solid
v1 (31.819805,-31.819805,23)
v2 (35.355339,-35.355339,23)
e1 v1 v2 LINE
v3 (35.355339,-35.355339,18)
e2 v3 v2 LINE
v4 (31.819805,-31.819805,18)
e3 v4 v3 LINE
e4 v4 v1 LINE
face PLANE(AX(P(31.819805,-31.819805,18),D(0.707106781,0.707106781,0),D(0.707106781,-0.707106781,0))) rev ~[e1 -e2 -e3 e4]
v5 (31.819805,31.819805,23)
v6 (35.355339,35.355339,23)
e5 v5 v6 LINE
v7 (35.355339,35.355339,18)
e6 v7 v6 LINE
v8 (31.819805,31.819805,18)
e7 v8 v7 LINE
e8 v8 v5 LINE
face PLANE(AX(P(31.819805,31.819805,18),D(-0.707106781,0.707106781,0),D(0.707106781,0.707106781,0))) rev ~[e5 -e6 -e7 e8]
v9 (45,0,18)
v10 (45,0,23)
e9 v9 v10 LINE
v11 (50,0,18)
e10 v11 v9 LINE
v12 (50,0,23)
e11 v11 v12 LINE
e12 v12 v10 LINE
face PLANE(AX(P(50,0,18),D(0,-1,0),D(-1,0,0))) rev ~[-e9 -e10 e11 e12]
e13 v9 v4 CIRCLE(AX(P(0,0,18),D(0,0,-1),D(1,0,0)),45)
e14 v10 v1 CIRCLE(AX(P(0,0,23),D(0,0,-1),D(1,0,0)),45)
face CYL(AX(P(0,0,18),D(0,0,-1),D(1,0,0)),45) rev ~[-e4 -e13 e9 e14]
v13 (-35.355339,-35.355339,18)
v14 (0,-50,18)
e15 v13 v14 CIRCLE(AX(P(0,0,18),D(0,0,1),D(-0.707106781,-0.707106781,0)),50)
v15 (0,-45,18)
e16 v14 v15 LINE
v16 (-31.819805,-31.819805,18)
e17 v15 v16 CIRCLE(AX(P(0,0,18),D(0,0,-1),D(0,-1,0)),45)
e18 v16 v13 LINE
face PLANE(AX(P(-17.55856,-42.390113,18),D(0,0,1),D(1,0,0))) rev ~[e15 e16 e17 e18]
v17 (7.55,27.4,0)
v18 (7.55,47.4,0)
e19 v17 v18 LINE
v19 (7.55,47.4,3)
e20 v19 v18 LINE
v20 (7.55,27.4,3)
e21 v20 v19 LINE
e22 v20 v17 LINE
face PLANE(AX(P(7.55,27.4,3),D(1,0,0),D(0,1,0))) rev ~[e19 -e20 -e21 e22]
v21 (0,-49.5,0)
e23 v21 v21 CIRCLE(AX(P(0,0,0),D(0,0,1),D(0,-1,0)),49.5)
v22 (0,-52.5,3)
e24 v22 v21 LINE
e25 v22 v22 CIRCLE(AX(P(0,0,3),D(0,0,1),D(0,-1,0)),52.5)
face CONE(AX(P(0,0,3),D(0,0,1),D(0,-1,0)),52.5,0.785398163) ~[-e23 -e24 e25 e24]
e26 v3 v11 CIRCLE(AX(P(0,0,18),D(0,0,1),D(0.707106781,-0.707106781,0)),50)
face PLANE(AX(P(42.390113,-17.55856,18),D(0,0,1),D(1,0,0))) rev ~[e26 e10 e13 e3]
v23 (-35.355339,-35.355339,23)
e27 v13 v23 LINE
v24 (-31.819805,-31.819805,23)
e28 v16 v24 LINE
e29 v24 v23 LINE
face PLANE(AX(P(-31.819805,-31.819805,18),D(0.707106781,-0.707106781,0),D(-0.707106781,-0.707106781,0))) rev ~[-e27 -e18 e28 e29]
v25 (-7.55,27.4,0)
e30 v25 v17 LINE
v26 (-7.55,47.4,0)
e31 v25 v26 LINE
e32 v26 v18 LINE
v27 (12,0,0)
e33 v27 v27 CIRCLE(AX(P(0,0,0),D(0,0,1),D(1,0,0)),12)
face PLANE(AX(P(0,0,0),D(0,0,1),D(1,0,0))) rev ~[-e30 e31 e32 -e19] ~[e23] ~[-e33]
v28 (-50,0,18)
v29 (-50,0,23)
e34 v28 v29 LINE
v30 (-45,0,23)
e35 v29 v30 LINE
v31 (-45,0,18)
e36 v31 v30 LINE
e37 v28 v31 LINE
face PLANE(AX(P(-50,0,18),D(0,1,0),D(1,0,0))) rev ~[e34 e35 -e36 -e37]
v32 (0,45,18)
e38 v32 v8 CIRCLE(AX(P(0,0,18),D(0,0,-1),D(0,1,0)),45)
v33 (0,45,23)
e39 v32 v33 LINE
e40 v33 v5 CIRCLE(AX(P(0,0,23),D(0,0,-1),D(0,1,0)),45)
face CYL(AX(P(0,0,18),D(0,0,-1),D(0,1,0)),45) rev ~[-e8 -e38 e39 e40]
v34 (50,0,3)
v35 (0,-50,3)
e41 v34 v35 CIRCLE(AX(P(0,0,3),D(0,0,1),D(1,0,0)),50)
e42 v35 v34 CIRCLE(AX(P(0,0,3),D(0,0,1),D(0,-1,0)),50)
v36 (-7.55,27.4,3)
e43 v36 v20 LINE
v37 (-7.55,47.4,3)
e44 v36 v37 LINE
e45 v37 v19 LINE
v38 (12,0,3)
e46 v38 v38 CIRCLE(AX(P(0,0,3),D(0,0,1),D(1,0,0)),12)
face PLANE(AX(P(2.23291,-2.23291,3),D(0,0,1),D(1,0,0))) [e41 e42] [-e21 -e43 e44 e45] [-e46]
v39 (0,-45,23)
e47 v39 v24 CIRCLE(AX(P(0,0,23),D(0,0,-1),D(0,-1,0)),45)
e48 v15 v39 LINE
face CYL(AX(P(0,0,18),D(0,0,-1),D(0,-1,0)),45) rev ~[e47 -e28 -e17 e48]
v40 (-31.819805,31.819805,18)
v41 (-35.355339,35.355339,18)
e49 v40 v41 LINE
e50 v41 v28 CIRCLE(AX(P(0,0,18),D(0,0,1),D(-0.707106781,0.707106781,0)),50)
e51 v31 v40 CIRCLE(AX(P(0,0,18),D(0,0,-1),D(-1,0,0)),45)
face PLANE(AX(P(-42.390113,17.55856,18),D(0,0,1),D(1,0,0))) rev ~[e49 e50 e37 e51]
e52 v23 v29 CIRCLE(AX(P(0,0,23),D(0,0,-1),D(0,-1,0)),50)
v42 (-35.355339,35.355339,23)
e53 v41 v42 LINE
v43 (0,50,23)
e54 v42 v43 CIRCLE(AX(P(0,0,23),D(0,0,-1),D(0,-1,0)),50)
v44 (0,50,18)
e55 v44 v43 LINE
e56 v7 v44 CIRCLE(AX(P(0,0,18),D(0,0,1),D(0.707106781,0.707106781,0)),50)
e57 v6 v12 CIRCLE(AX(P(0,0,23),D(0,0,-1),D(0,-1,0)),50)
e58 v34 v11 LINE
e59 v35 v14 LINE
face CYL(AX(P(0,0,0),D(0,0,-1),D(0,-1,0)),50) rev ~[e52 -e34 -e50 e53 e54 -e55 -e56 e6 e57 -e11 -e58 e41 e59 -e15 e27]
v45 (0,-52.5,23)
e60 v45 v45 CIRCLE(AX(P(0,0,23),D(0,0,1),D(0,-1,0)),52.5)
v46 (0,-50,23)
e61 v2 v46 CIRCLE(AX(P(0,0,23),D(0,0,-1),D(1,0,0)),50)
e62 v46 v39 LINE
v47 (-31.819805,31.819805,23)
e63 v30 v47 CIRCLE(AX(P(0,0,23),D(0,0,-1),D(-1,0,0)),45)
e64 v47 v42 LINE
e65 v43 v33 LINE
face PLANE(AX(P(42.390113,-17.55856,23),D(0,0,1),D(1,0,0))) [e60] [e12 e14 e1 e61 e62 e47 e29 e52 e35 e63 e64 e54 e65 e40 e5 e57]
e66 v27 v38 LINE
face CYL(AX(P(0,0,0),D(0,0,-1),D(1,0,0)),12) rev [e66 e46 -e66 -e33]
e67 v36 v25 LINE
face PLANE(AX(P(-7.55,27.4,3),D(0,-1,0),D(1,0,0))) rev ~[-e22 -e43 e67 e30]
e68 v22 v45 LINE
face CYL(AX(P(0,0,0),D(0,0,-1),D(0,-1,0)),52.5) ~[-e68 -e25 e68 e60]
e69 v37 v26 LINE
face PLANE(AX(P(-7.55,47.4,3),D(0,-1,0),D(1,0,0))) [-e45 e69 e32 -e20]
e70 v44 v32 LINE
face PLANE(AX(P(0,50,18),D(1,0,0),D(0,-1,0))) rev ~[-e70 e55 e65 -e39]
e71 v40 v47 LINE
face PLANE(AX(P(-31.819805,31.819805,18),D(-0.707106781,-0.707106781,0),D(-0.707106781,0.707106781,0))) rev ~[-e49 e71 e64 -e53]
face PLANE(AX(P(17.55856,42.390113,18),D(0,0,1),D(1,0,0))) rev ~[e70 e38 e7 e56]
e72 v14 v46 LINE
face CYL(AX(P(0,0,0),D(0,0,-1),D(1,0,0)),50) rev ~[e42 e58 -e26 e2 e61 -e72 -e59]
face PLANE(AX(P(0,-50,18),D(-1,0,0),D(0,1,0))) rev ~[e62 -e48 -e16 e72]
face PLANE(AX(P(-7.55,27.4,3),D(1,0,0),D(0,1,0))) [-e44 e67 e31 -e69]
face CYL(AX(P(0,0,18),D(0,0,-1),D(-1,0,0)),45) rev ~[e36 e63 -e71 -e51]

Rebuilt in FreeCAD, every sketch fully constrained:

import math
import FreeCAD as App
import Part
import Sketcher


def edges_at(feature, points):
    """Names of the edges that pass closest to the given points."""
    edges = feature.Shape.Edges
    near = lambda p: min(range(len(edges)), key=lambda i: edges[i].distToShape(Part.Vertex(*p))[0])
    return sorted({f"Edge{near(p) + 1}" for p in points})

doc = App.newDocument("Part")
body = doc.addObject("PartDesign::Body", "Body")

# Sketch on XY plane
sketch1 = doc.addObject("Sketcher::SketchObject", "Sketch")
body.addObject(sketch1)
sketch1.AttachmentSupport = (doc.XY_Plane, [""])
sketch1.MapMode = "FlatFace"
sketch1.addGeometry(Part.ArcOfCircle(Part.Circle(App.Vector(0, 0, 0), App.Vector(0, 0, 1), 50), math.radians(-90), math.radians(0)), False)
sketch1.addGeometry(Part.ArcOfCircle(Part.Circle(App.Vector(0, 0, 0), App.Vector(0, 0, 1), 50), math.radians(0), math.radians(270)), False)
sketch1.addGeometry(Part.Circle(App.Vector(0, 0, 0), App.Vector(0, 0, 1), 12), False)
sketch1.addConstraint(Sketcher.Constraint("Tangent", 0, 1, 1, 2))
sketch1.addConstraint(Sketcher.Constraint("Coincident", 1, 1, 0, 2))
sketch1.addConstraint(Sketcher.Constraint("Coincident", 0, 3, -1, 1))
sketch1.addConstraint(Sketcher.Constraint("Coincident", 2, 3, -1, 1))
sketch1.addConstraint(Sketcher.Constraint("PointOnObject", 0, 1, -2))
sketch1.addConstraint(Sketcher.Constraint("PointOnObject", 1, 1, -1))
sketch1.addConstraint(Sketcher.Constraint("Diameter", 2, 24.0))
sketch1.addConstraint(Sketcher.Constraint("Radius", 0, 50.0))
pad1 = doc.addObject("PartDesign::Pad", "Pad")
body.addObject(pad1)
pad1.Profile = sketch1
pad1.Length = 3

# Sketch on XY plane
sketch2 = doc.addObject("Sketcher::SketchObject", "Sketch001")
body.addObject(sketch2)
sketch2.AttachmentSupport = (doc.XY_Plane, [""])
sketch2.MapMode = "FlatFace"
sketch2.addGeometry(Part.Circle(App.Vector(0, 0, 0), App.Vector(0, 0, 1), 52), False)
sketch2.addGeometry(Part.ArcOfCircle(Part.Circle(App.Vector(0, 0, 0), App.Vector(0, 0, 1), 50), math.radians(-90), math.radians(0)), False)
sketch2.addGeometry(Part.ArcOfCircle(Part.Circle(App.Vector(0, 0, 0), App.Vector(0, 0, 1), 50), math.radians(0), math.radians(270)), False)
sketch2.addConstraint(Sketcher.Constraint("Tangent", 1, 1, 2, 2))
sketch2.addConstraint(Sketcher.Constraint("Coincident", 2, 1, 1, 2))
sketch2.addConstraint(Sketcher.Constraint("Coincident", 0, 3, -1, 1))
sketch2.addConstraint(Sketcher.Constraint("Coincident", 1, 3, -1, 1))
sketch2.addConstraint(Sketcher.Constraint("PointOnObject", 1, 1, -2))
sketch2.addConstraint(Sketcher.Constraint("PointOnObject", 2, 1, -1))
sketch2.addConstraint(Sketcher.Constraint("Diameter", 0, 105.0))
sketch2.addConstraint(Sketcher.Constraint("Radius", 1, 50.0))
pad2 = doc.addObject("PartDesign::Pad", "Pad001")
body.addObject(pad2)
pad2.Profile = sketch2
pad2.Length = 23

# Sketch on XY plane
sketch3 = doc.addObject("Sketcher::SketchObject", "Sketch002")
body.addObject(sketch3)
sketch3.AttachmentSupport = (doc.XY_Plane, [""])
sketch3.MapMode = "FlatFace"
sketch3.AttachmentOffset = App.Placement(App.Vector(0, 0, 18), App.Rotation())
sketch3.addGeometry(Part.LineSegment(App.Vector(32, -32, 0), App.Vector(35, -35, 0)), False)
sketch3.addGeometry(Part.ArcOfCircle(Part.Circle(App.Vector(0, 0, 0), App.Vector(0, 0, 1), 50), math.radians(-45), math.radians(0)), False)
sketch3.addGeometry(Part.LineSegment(App.Vector(50, 0, 0), App.Vector(45, 0, 0)), False)
sketch3.addGeometry(Part.ArcOfCircle(Part.Circle(App.Vector(0, 0, 0), App.Vector(0, 0, 1), 45), math.radians(-45), math.radians(0)), False)
sketch3.addGeometry(Part.ArcOfCircle(Part.Circle(App.Vector(0, 0, 0), App.Vector(0, 0, 1), 45), math.radians(135), math.radians(180)), False)
sketch3.addGeometry(Part.LineSegment(App.Vector(-32, 32, 0), App.Vector(-35, 35, 0)), False)
sketch3.addGeometry(Part.ArcOfCircle(Part.Circle(App.Vector(0, 0, 0), App.Vector(0, 0, 1), 50), math.radians(135), math.radians(180)), False)
sketch3.addGeometry(Part.LineSegment(App.Vector(-50, 0, 0), App.Vector(-45, 0, 0)), False)
sketch3.addGeometry(Part.ArcOfCircle(Part.Circle(App.Vector(0, 0, 0), App.Vector(0, 0, 1), 50), math.radians(45), math.radians(90)), False)
sketch3.addGeometry(Part.LineSegment(App.Vector(0, 50, 0), App.Vector(0, 45, 0)), False)
sketch3.addGeometry(Part.ArcOfCircle(Part.Circle(App.Vector(0, 0, 0), App.Vector(0, 0, 1), 45), math.radians(45), math.radians(90)), False)
sketch3.addGeometry(Part.LineSegment(App.Vector(32, 32, 0), App.Vector(35, 35, 0)), False)
sketch3.addGeometry(Part.LineSegment(App.Vector(-32, -32, 0), App.Vector(-35, -35, 0)), False)
sketch3.addGeometry(Part.ArcOfCircle(Part.Circle(App.Vector(0, 0, 0), App.Vector(0, 0, 1), 50), math.radians(-135), math.radians(-90)), False)
sketch3.addGeometry(Part.LineSegment(App.Vector(0, -50, 0), App.Vector(0, -45, 0)), False)
sketch3.addGeometry(Part.ArcOfCircle(Part.Circle(App.Vector(0, 0, 0), App.Vector(0, 0, 1), 45), math.radians(-135), math.radians(-90)), False)
sketch3.addConstraint(Sketcher.Constraint("Coincident", 0, 2, 1, 1))
sketch3.addConstraint(Sketcher.Constraint("Coincident", 1, 2, 2, 1))
sketch3.addConstraint(Sketcher.Constraint("Coincident", 2, 2, 3, 2))
sketch3.addConstraint(Sketcher.Constraint("Coincident", 3, 1, 0, 1))
sketch3.addConstraint(Sketcher.Constraint("Coincident", 4, 1, 5, 1))
sketch3.addConstraint(Sketcher.Constraint("Coincident", 5, 2, 6, 1))
sketch3.addConstraint(Sketcher.Constraint("Coincident", 6, 2, 7, 1))
sketch3.addConstraint(Sketcher.Constraint("Coincident", 7, 2, 4, 2))
sketch3.addConstraint(Sketcher.Constraint("Coincident", 8, 2, 9, 1))
sketch3.addConstraint(Sketcher.Constraint("Coincident", 9, 2, 10, 2))
sketch3.addConstraint(Sketcher.Constraint("Coincident", 10, 1, 11, 1))
sketch3.addConstraint(Sketcher.Constraint("Coincident", 11, 2, 8, 1))
sketch3.addConstraint(Sketcher.Constraint("Coincident", 12, 2, 13, 1))
sketch3.addConstraint(Sketcher.Constraint("Coincident", 13, 2, 14, 1))
sketch3.addConstraint(Sketcher.Constraint("Coincident", 14, 2, 15, 2))
sketch3.addConstraint(Sketcher.Constraint("Coincident", 15, 1, 12, 1))
sketch3.addConstraint(Sketcher.Constraint("Horizontal", 2))
sketch3.addConstraint(Sketcher.Constraint("Horizontal", 7))
sketch3.addConstraint(Sketcher.Constraint("Vertical", 9))
sketch3.addConstraint(Sketcher.Constraint("Vertical", 14))
sketch3.addConstraint(Sketcher.Constraint("Coincident", 1, 3, -1, 1))
sketch3.addConstraint(Sketcher.Constraint("Coincident", 3, 3, -1, 1))
sketch3.addConstraint(Sketcher.Constraint("Coincident", 4, 3, -1, 1))
sketch3.addConstraint(Sketcher.Constraint("Coincident", 6, 3, -1, 1))
sketch3.addConstraint(Sketcher.Constraint("Coincident", 8, 3, -1, 1))
sketch3.addConstraint(Sketcher.Constraint("Coincident", 10, 3, -1, 1))
sketch3.addConstraint(Sketcher.Constraint("Coincident", 13, 3, -1, 1))
sketch3.addConstraint(Sketcher.Constraint("Coincident", 15, 3, -1, 1))
sketch3.addConstraint(Sketcher.Constraint("Equal", 3, 4))
sketch3.addConstraint(Sketcher.Constraint("Equal", 1, 6))
sketch3.addConstraint(Sketcher.Constraint("Equal", 6, 8))
sketch3.addConstraint(Sketcher.Constraint("Equal", 4, 10))
sketch3.addConstraint(Sketcher.Constraint("Equal", 8, 13))
sketch3.addConstraint(Sketcher.Constraint("Equal", 10, 15))
sketch3.addConstraint(Sketcher.Constraint("PointOnObject", 1, 2, -1))
sketch3.addConstraint(Sketcher.Constraint("PointOnObject", 6, 2, -1))
sketch3.addConstraint(Sketcher.Constraint("PointOnObject", 8, 2, -2))
sketch3.addConstraint(Sketcher.Constraint("PointOnObject", 13, 2, -2))
sketch3.addConstraint(Sketcher.Constraint("Parallel", 0, 5))
sketch3.addConstraint(Sketcher.Constraint("Perpendicular", 5, 11))
sketch3.addConstraint(Sketcher.Constraint("Parallel", 11, 12))
sketch3.addConstraint(Sketcher.Constraint("Horizontal", 4, 1, 10, 1))
sketch3.addConstraint(Sketcher.Constraint("Horizontal", 5, 2, 11, 2))
sketch3.addConstraint(Sketcher.Constraint("Horizontal", 0, 2, 12, 2))
sketch3.addConstraint(Sketcher.Constraint("Vertical", 3, 1, 10, 1))
sketch3.addConstraint(Sketcher.Constraint("Radius", 1, 50.0))
sketch3.addConstraint(Sketcher.Constraint("Radius", 3, 45.0))
sketch3.addConstraint(Sketcher.Constraint("DistanceX", -1, 1, 0, 2, 35.355339))
pad3 = doc.addObject("PartDesign::Pad", "Pad002")
body.addObject(pad3)
pad3.Profile = sketch3
pad3.Length = 5
doc.recompute()

chamfer = doc.addObject("PartDesign::Chamfer", "Chamfer")
body.addObject(chamfer)
chamfer.Base = (pad3, edges_at(pad3, [(0, 52.5, 0)]))
chamfer.Size = 3

# Sketch on XY plane
sketch4 = doc.addObject("Sketcher::SketchObject", "Sketch003")
body.addObject(sketch4)
sketch4.AttachmentSupport = (doc.XY_Plane, [""])
sketch4.MapMode = "FlatFace"
sketch4.AttachmentOffset = App.Placement(App.Vector(0, 0, 3), App.Rotation())
sketch4.addGeometry(Part.LineSegment(App.Vector(-8, 47, 0), App.Vector(-8, 27, 0)), False)
sketch4.addGeometry(Part.LineSegment(App.Vector(-8, 27, 0), App.Vector(8, 27, 0)), False)
sketch4.addGeometry(Part.LineSegment(App.Vector(8, 27, 0), App.Vector(8, 47, 0)), False)
sketch4.addGeometry(Part.LineSegment(App.Vector(8, 47, 0), App.Vector(-8, 47, 0)), False)
sketch4.addConstraint(Sketcher.Constraint("Coincident", 0, 2, 1, 1))
sketch4.addConstraint(Sketcher.Constraint("Coincident", 1, 2, 2, 1))
sketch4.addConstraint(Sketcher.Constraint("Coincident", 2, 2, 3, 1))
sketch4.addConstraint(Sketcher.Constraint("Coincident", 3, 2, 0, 1))
sketch4.addConstraint(Sketcher.Constraint("Vertical", 0))
sketch4.addConstraint(Sketcher.Constraint("Horizontal", 1))
sketch4.addConstraint(Sketcher.Constraint("Vertical", 2))
sketch4.addConstraint(Sketcher.Constraint("Horizontal", 3))
sketch4.addConstraint(Sketcher.Constraint("DistanceY", 0, 2, 0, 1, 20.0))
sketch4.addConstraint(Sketcher.Constraint("DistanceX", 1, 1, 1, 2, 15.1))
sketch4.addConstraint(Sketcher.Constraint("DistanceY", -1, 1, 0, 2, 27.4))
sketch4.addConstraint(Sketcher.Constraint("DistanceX", 0, 2, -1, 1, 7.55))
pocket1 = doc.addObject("PartDesign::Pocket", "Pocket")
body.addObject(pocket1)
pocket1.Profile = sketch4
pocket1.Length = 52.8

doc.recompute()
